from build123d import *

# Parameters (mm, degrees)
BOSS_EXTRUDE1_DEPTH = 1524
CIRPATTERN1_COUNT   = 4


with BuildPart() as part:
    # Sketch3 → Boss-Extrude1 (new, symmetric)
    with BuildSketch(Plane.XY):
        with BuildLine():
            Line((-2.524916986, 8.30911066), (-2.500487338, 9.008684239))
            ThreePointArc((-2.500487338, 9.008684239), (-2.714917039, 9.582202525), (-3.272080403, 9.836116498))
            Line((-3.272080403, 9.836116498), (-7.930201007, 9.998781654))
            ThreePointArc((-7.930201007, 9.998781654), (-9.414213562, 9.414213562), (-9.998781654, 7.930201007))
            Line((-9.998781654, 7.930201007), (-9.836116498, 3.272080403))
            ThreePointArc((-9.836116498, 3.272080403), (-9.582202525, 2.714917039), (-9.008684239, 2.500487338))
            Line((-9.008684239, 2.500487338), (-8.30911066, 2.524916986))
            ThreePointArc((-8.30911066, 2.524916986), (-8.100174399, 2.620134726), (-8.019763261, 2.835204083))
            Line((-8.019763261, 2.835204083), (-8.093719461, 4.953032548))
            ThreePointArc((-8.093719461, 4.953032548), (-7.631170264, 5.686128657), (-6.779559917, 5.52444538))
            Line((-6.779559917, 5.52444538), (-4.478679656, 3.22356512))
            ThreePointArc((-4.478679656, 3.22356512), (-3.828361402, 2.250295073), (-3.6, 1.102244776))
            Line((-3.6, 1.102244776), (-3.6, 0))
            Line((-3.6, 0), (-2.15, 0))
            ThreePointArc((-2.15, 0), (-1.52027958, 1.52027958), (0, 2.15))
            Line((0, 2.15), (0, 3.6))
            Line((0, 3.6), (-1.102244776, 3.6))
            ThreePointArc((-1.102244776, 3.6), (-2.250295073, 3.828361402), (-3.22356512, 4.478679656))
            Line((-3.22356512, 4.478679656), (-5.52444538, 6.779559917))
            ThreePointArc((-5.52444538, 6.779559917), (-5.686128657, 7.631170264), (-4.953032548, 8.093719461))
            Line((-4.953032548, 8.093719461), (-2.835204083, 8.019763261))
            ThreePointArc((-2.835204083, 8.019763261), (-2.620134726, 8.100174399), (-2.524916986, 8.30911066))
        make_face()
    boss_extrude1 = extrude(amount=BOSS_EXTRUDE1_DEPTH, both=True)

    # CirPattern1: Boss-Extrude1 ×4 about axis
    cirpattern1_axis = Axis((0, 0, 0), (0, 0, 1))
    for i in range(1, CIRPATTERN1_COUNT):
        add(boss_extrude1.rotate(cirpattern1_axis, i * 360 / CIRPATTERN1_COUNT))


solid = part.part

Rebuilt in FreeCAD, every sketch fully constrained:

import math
import FreeCAD as App
import Part
import Sketcher
Q = App.Units.Quantity

doc = App.newDocument("Part")
params = doc.addObject("Spreadsheet::Sheet", "Params")
for row, (alias, value) in enumerate([
    ("sketch1_radius", "2 mm"),
    ("sketch1_radius2", "3 mm"),
    ("sketch1_radius3", "0.8 mm"),
    ("sketch1_radius4", "0.3 mm"),
    ("sketch1_radius5", "2.15 mm"),
    ("pad1_length", "3048 mm"),
], start=1):
    params.set(f"A{row}", alias)
    params.set(f"B{row}", "=" + value)
    params.setAlias(f"B{row}", alias)

body = doc.addObject("PartDesign::Body", "Body")

# Sketch on XY plane
sketch1 = body.newObject("Sketcher::SketchObject", "Sketch")
sketch1.AttachmentSupport = (doc.getObject("XY_Plane"), [""])
sketch1.MapMode = "FlatFace"
sketch1.addGeometry(Part.LineSegment(App.Vector(-2.52, 8.31, 0), App.Vector(-2.5, 9.01, 0)), False)
sketch1.addGeometry(Part.ArcOfCircle(Part.Circle(App.Vector(-3.3, 9.04, 0), App.Vector(0, 0, 1), 0.8), math.radians(-2), math.radians(88)), False)
sketch1.addGeometry(Part.LineSegment(App.Vector(-3.27, 9.84, 0), App.Vector(-7.93, 10, 0)), False)
sketch1.addGeometry(Part.ArcOfCircle(Part.Circle(App.Vector(-8, 8, 0), App.Vector(0, 0, 1), 2), math.radians(88), math.radians(182)), False)
sketch1.addGeometry(Part.LineSegment(App.Vector(-10, 7.93, 0), App.Vector(-9.84, 3.27, 0)), False)
sketch1.addGeometry(Part.ArcOfCircle(Part.Circle(App.Vector(-9.04, 3.3, 0), App.Vector(0, 0, 1), 0.8), math.radians(-178), math.radians(-88)), False)
sketch1.addGeometry(Part.LineSegment(App.Vector(-9.01, 2.5, 0), App.Vector(-8.31, 2.52, 0)), False)
sketch1.addGeometry(Part.ArcOfCircle(Part.Circle(App.Vector(-8.32, 2.82, 0), App.Vector(0, 0, 1), 0.3), math.radians(-88), math.radians(2)), False)
sketch1.addGeometry(Part.LineSegment(App.Vector(-8.02, 2.84, 0), App.Vector(-8.09, 4.95, 0)), False)
sketch1.addGeometry(Part.ArcOfCircle(Part.Circle(App.Vector(-7.32, 4.98, 0), App.Vector(0, 0, 1), 0.77), math.radians(45), math.radians(182)), False)
sketch1.addGeometry(Part.LineSegment(App.Vector(-6.78, 5.52, 0), App.Vector(-4.48, 3.22, 0)), False)
sketch1.addGeometry(Part.ArcOfCircle(Part.Circle(App.Vector(-6.6, 1.1, 0), App.Vector(0, 0, 1), 3), math.radians(0), math.radians(45)), False)
sketch1.addGeometry(Part.LineSegment(App.Vector(-3.6, 1.1, 0), App.Vector(-3.6, 0, 0)), False)
sketch1.addGeometry(Part.LineSegment(App.Vector(-3.6, 0, 0), App.Vector(-2.15, 0, 0)), False)
sketch1.addGeometry(Part.ArcOfCircle(Part.Circle(App.Vector(0, 0, 0), App.Vector(0, 0, 1), 2.15), math.radians(90), math.radians(180)), False)
sketch1.addGeometry(Part.LineSegment(App.Vector(0, 2.15, 0), App.Vector(0, 3.6, 0)), False)
sketch1.addGeometry(Part.LineSegment(App.Vector(0, 3.6, 0), App.Vector(-1.1, 3.6, 0)), False)
sketch1.addGeometry(Part.ArcOfCircle(Part.Circle(App.Vector(-1.1, 6.6, 0), App.Vector(0, 0, 1), 3), math.radians(-135), math.radians(-90)), False)
sketch1.addGeometry(Part.LineSegment(App.Vector(-3.22, 4.48, 0), App.Vector(-5.52, 6.78, 0)), False)
sketch1.addGeometry(Part.ArcOfCircle(Part.Circle(App.Vector(-4.98, 7.32, 0), App.Vector(0, 0, 1), 0.77), math.radians(88), math.radians(225)), False)
sketch1.addGeometry(Part.LineSegment(App.Vector(-4.95, 8.09, 0), App.Vector(-2.84, 8.02, 0)), False)
sketch1.addGeometry(Part.ArcOfCircle(Part.Circle(App.Vector(-2.82, 8.32, 0), App.Vector(0, 0, 1), 0.3), math.radians(-92), math.radians(-2)), False)
sketch1.addConstraint(Sketcher.Constraint("Tangent", 0, 2, 1, 1))
sketch1.addConstraint(Sketcher.Constraint("Tangent", 1, 2, 2, 1))
sketch1.addConstraint(Sketcher.Constraint("Tangent", 2, 2, 3, 1))
sketch1.addConstraint(Sketcher.Constraint("Tangent", 3, 2, 4, 1))
sketch1.addConstraint(Sketcher.Constraint("Tangent", 4, 2, 5, 1))
sketch1.addConstraint(Sketcher.Constraint("Tangent", 5, 2, 6, 1))
sketch1.addConstraint(Sketcher.Constraint("Tangent", 6, 2, 7, 1))
sketch1.addConstraint(Sketcher.Constraint("Tangent", 7, 2, 8, 1))
sketch1.addConstraint(Sketcher.Constraint("Tangent", 8, 2, 9, 2))
sketch1.addConstraint(Sketcher.Constraint("Tangent", 9, 1, 10, 1))
sketch1.addConstraint(Sketcher.Constraint("Tangent", 10, 2, 11, 2))
sketch1.addConstraint(Sketcher.Constraint("Tangent", 11, 1, 12, 1))
sketch1.addConstraint(Sketcher.Constraint("Coincident", 12, 2, 13, 1))
sketch1.addConstraint(Sketcher.Constraint("Coincident", 13, 2, 14, 2))
sketch1.addConstraint(Sketcher.Constraint("Coincident", 14, 1, 15, 1))
sketch1.addConstraint(Sketcher.Constraint("Coincident", 15, 2, 16, 1))
sketch1.addConstraint(Sketcher.Constraint("Tangent", 16, 2, 17, 2))
sketch1.addConstraint(Sketcher.Constraint("Tangent", 17, 1, 18, 1))
sketch1.addConstraint(Sketcher.Constraint("Tangent", 18, 2, 19, 2))
sketch1.addConstraint(Sketcher.Constraint("Tangent", 19, 1, 20, 1))
sketch1.addConstraint(Sketcher.Constraint("Tangent", 20, 2, 21, 1))
sketch1.addConstraint(Sketcher.Constraint("Tangent", 21, 2, 0, 1))
sketch1.addConstraint(Sketcher.Constraint("Vertical", 12))
sketch1.addConstraint(Sketcher.Constraint("Horizontal", 13))
sketch1.addConstraint(Sketcher.Constraint("Vertical", 15))
sketch1.addConstraint(Sketcher.Constraint("Horizontal", 16))
sketch1.addConstraint(Sketcher.Constraint("Coincident", 14, 3, -1, 1))
sketch1.addConstraint(Sketcher.Constraint("Equal", 1, 5))
sketch1.addConstraint(Sketcher.Constraint("Equal", 11, 17))
sketch1.addConstraint(Sketcher.Constraint("Equal", 9, 19))
sketch1.addConstraint(Sketcher.Constraint("Equal", 7, 21))
sketch1.addConstraint(Sketcher.Constraint("PointOnObject", 12, 2, -1))
sketch1.addConstraint(Sketcher.Constraint("PointOnObject", 14, 1, -2))
sketch1.addConstraint(Sketcher.Constraint("Perpendicular", 0, 2))
sketch1.addConstraint(Sketcher.Constraint("Perpendicular", 4, 6))
sketch1.addConstraint(Sketcher.Constraint("Perpendicular", 6, 8))
sketch1.addConstraint(Sketcher.Constraint("Parallel", 10, 18))
sketch1.addConstraint(Sketcher.Constraint("Parallel", 2, 20))
sketch1.addConstraint(Sketcher.Constraint("Equal", 16, 12))
sketch1.addConstraint(Sketcher.Constraint("Equal", 13, 15))
sketch1.addConstraint(Sketcher.Constraint("Equal", 2, 4))
sketch1.addConstraint(Sketcher.Constraint("Equal", 0, 6))
sketch1.addConstraint(Sketcher.Constraint("Equal", 10, 18))
sketch1.addConstraint(Sketcher.Constraint("Equal", 8, 20))
sketch1.addConstraint(Sketcher.Constraint("Radius", 3, Q("2 mm")))
sketch1.addConstraint(Sketcher.Constraint("Radius", 11, Q("3 mm")))
sketch1.addConstraint(Sketcher.Constraint("Radius", 1, Q("0.8 mm")))
sketch1.addConstraint(Sketcher.Constraint("Radius", 7, Q("0.3 mm")))
sketch1.addConstraint(Sketcher.Constraint("Angle", 0, Q("88 deg")))
sketch1.addConstraint(Sketcher.Constraint("Angle", 4, Q("-88 deg")))
sketch1.addConstraint(Sketcher.Constraint("Radius", 14, Q("2.15 mm")))
sketch1.addConstraint(Sketcher.Constraint("DistanceX", 3, 3, -1, 1, Q("8 mm")))
sketch1.addConstraint(Sketcher.Constraint("Distance", 0, Q("0.7 mm")))
sketch1.addConstraint(Sketcher.Constraint("DistanceX", 13, 1, 13, 2, Q("1.45 mm")))
sketch1.addConstraint(Sketcher.Constraint("DistanceX", 1, 3, -1, 1, Q("3.3 mm")))
sketch1.addConstraint(Sketcher.Constraint("Radius", 9, Q("0.770092 mm")))
sketch1.addConstraint(Sketcher.Constraint("DistanceY", 7, 3, 8, 2, Q("2.128298 mm")))
sketch1.setExpression("Constraints[44]", "Params.sketch1_radius")
sketch1.setExpression("Constraints[45]", "Params.sketch1_radius2")
sketch1.setExpression("Constraints[46]", "Params.sketch1_radius3")
sketch1.setExpression("Constraints[47]", "Params.sketch1_radius4")
sketch1.setExpression("Constraints[50]", "Params.sketch1_radius5")
pad1 = body.newObject("PartDesign::Pad", "Pad")
pad1.Profile = sketch1
pad1.setExpression("Length", "Params.pad1_length")
pad1.Midplane = True
doc.recompute()

polarpattern = body.newObject("PartDesign::PolarPattern", "PolarPattern")
polarpattern.Originals = [pad1]
polarpattern.Axis = (doc.getObject("Z_Axis"), [""])
polarpattern.Angle = 360
polarpattern.Occurrences = 4
body.Tip = polarpattern

doc.recompute()
